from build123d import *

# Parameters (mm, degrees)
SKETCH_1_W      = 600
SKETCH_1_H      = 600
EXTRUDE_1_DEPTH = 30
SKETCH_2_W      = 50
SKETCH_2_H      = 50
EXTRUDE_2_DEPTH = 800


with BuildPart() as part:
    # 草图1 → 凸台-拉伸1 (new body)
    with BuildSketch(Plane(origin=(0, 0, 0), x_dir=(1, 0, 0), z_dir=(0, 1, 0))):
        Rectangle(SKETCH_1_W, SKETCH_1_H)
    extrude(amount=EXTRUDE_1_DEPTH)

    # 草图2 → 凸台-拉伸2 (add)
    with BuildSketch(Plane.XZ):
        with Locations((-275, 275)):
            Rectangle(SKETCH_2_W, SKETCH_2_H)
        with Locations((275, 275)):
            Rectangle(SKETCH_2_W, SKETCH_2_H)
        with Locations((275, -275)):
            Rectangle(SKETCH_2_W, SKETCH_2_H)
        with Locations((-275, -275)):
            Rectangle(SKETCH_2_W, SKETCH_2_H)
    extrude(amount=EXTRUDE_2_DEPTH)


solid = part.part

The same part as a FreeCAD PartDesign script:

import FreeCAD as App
import Part
import Sketcher
Q = App.Units.Quantity


def add_polygon(sketch, points):
    """Adds a closed chain of lines whose ends are joined by coincident constraints."""
    first, n = sketch.GeometryCount, len(points)
    for a, b in zip(points, points[1:] + points[:1]):
        sketch.addGeometry(Part.LineSegment(App.Vector(*a, 0), App.Vector(*b, 0)), False)
    for i in range(n):
        sketch.addConstraint(Sketcher.Constraint("Coincident", first + i, 2, first + (i + 1) % n, 1))

doc = App.newDocument("Part")
body = doc.addObject("PartDesign::Body", "Body")

# Sketch on XZ plane
sketch1 = body.newObject("Sketcher::SketchObject", "Sketch")
sketch1.AttachmentSupport = (doc.getObject("XZ_Plane"), [""])
sketch1.MapMode = "FlatFace"
add_polygon(sketch1, [(-300, -300), (-300, 300), (300, 300), (300, -300)])  # lines 0-3
sketch1.addConstraint(Sketcher.Constraint("Vertical", 0))
sketch1.addConstraint(Sketcher.Constraint("Horizontal", 1))
sketch1.addConstraint(Sketcher.Constraint("Vertical", 2))
sketch1.addConstraint(Sketcher.Constraint("Horizontal", 3))
sketch1.addConstraint(Sketcher.Constraint("Symmetric", 0, 2, 2, 2, -1, 1))
sketch1.addConstraint(Sketcher.Constraint("Equal", 3, 0))
sketch1.addConstraint(Sketcher.Constraint("DistanceX", 1, 1, 1, 2, Q("600 mm")))
pad1 = body.newObject("PartDesign::Pad", "Pad")
pad1.Profile = sketch1
pad1.Length = 30
pad1.Reversed = True

# Sketch on XZ plane
sketch2 = body.newObject("Sketcher::SketchObject", "Sketch001")
sketch2.AttachmentSupport = (doc.getObject("XZ_Plane"), [""])
sketch2.MapMode = "FlatFace"
add_polygon(sketch2, [(-300, 300), (-300, 250), (-250, 250), (-250, 300)])  # lines 0-3
add_polygon(sketch2, [(250, 300), (250, 250), (300, 250), (300, 300)])  # lines 4-7
add_polygon(sketch2, [(250, -250), (250, -300), (300, -300), (300, -250)])  # lines 8-11
add_polygon(sketch2, [(-300, -250), (-300, -300), (-250, -300), (-250, -250)])  # lines 12-15
sketch2.addConstraint(Sketcher.Constraint("Vertical", 0))
sketch2.addConstraint(Sketcher.Constraint("Horizontal", 1))
sketch2.addConstraint(Sketcher.Constraint("Vertical", 2))
sketch2.addConstraint(Sketcher.Constraint("Horizontal", 3))
sketch2.addConstraint(Sketcher.Constraint("Vertical", 4))
sketch2.addConstraint(Sketcher.Constraint("Horizontal", 5))
sketch2.addConstraint(Sketcher.Constraint("Vertical", 6))
sketch2.addConstraint(Sketcher.Constraint("Horizontal", 7))
sketch2.addConstraint(Sketcher.Constraint("Vertical", 8))
sketch2.addConstraint(Sketcher.Constraint("Horizontal", 9))
sketch2.addConstraint(Sketcher.Constraint("Vertical", 10))
sketch2.addConstraint(Sketcher.Constraint("Horizontal", 11))
sketch2.addConstraint(Sketcher.Constraint("Vertical", 12))
sketch2.addConstraint(Sketcher.Constraint("Horizontal", 13))
sketch2.addConstraint(Sketcher.Constraint("Vertical", 14))
sketch2.addConstraint(Sketcher.Constraint("Horizontal", 15))
sketch2.addConstraint(Sketcher.Constraint("Symmetric", 2, 2, 8, 2, -1, 1))
sketch2.addConstraint(Sketcher.Constraint("Symmetric", 0, 2, 10, 2, -1, 1))
sketch2.addConstraint(Sketcher.Constraint("Symmetric", 6, 2, 12, 2, -1, 1))
sketch2.addConstraint(Sketcher.Constraint("Symmetric", 4, 2, 14, 2, -1, 1))
sketch2.addConstraint(Sketcher.Constraint("Symmetric", 1, 2, 4, 2, -2))
sketch2.addConstraint(Sketcher.Constraint("Symmetric", 3, 2, 6, 2, -2))
sketch2.addConstraint(Sketcher.Constraint("Equal", 15, 0))
sketch2.addConstraint(Sketcher.Constraint("DistanceX", 1, 1, 1, 2, Q("50 mm")))
sketch2.addConstraint(Sketcher.Constraint("DistanceX", 0, 2, -1, 1, Q("300 mm")))
sketch2.addConstraint(Sketcher.Constraint("DistanceY", -1, 1, 0, 2, Q("250 mm")))
pad2 = body.newObject("PartDesign::Pad", "Pad001")
pad2.Profile = sketch2
pad2.Length = 800

doc.recompute()
